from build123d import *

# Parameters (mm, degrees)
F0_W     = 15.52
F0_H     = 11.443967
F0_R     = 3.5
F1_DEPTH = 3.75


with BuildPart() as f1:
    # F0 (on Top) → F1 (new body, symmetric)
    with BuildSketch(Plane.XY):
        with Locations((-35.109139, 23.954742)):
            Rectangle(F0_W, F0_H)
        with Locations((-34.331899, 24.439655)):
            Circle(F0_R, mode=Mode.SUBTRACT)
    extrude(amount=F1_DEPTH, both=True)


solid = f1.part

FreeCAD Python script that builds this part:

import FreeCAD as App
import Part
import Sketcher

V = App.Vector

doc = App.newDocument("Part")
body = doc.addObject("PartDesign::Body", "Body")

# Sketch on XY plane
sketch1 = body.newObject("Sketcher::SketchObject", "Sketch")
sketch1.AttachmentSupport = (doc.getObject("XY_Plane"), [""])
sketch1.MapMode = "FlatFace"
sketch1.addGeometry([
    Part.LineSegment(V(-42.869139, 29.676725, 0), V(-42.869139, 18.232758, 0)),  # 0
    Part.LineSegment(V(-42.869139, 18.232758, 0), V(-27.349139, 18.232758, 0)),  # 1
    Part.LineSegment(V(-27.349139, 18.232758, 0), V(-27.349139, 29.676725, 0)),  # 2
    Part.LineSegment(V(-27.349139, 29.676725, 0), V(-42.869139, 29.676725, 0)),  # 3
    Part.Circle(V(-34.331899, 24.439655, 0), V(0, 0, 1), 3.5),  # 4
], False)
sketch1.addConstraint([
    Sketcher.Constraint("Coincident", 0, 2, 1, 1),
    Sketcher.Constraint("Coincident", 1, 2, 2, 1),
    Sketcher.Constraint("Coincident", 2, 2, 3, 1),
    Sketcher.Constraint("Coincident", 3, 2, 0, 1),
    Sketcher.Constraint("Vertical", 0),
    Sketcher.Constraint("Horizontal", 1),
    Sketcher.Constraint("Vertical", 2),
    Sketcher.Constraint("Horizontal", 3),
    Sketcher.Constraint("Diameter", 4, 7.0),
    Sketcher.Constraint("DistanceX", 1, 1, 1, 2, 15.52),
    Sketcher.Constraint("DistanceX", 4, 3, -1, 1, 34.331899),
    Sketcher.Constraint("DistanceY", 0, 2, 0, 1, 11.443967),
    Sketcher.Constraint("DistanceX", 0, 2, -1, 1, 42.869139),
    Sketcher.Constraint("DistanceY", -1, 1, 0, 2, 18.232758),
    Sketcher.Constraint("DistanceY", 4, 3, 2, 2, 5.237071),
])
pad1 = body.newObject("PartDesign::Pad", "Pad")
pad1.Profile = sketch1
pad1.Length = 7.5
pad1.Midplane = True

doc.recompute()
